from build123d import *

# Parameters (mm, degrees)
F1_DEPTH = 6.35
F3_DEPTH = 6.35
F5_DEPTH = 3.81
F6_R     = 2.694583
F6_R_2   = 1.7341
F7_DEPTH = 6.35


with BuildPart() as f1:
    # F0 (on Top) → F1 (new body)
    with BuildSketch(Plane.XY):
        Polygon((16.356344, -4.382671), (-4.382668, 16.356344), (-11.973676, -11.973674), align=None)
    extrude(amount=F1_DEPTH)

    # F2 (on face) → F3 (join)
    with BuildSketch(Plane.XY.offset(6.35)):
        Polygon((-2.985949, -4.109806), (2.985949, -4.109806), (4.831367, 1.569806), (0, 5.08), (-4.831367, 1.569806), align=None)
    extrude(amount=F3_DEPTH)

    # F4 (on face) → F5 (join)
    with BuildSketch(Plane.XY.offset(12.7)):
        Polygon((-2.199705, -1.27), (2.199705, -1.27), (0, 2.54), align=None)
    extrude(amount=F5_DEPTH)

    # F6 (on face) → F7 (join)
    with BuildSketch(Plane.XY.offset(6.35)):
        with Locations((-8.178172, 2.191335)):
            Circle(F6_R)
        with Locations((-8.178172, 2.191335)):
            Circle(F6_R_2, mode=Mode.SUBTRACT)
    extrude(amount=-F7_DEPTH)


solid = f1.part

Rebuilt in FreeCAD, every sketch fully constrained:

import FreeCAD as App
import Part
import Sketcher
from FreeCAD import Vector
Q = App.Units.Quantity

doc = App.newDocument("Part")
body = doc.addObject("PartDesign::Body", "Body")

# Sketch on XY plane
sketch1 = body.newObject("Sketcher::SketchObject", "Sketch")
sketch1.AttachmentSupport = (doc.getObject("XY_Plane"), [""])
sketch1.MapMode = "FlatFace"
sketch1.addGeometry([
    Part.LineSegment(Vector(16, -4, 0), Vector(-4, 16, 0)),
    Part.LineSegment(Vector(-4, 16, 0), Vector(-12, -12, 0)),
    Part.LineSegment(Vector(-12, -12, 0), Vector(16, -4, 0)),
], False)
sketch1.addConstraint([
    Sketcher.Constraint("Coincident", 0, 2, 1, 1),
    Sketcher.Constraint("Coincident", 1, 2, 2, 1),
    Sketcher.Constraint("Coincident", 2, 2, 0, 1),
    Sketcher.Constraint("Equal", 0, 1),
    Sketcher.Constraint("Equal", 1, 2),
    Sketcher.Constraint("Angle", 0, Q("134.999996 deg")),
    Sketcher.Constraint("DistanceY", 2, 2, -1, 1, Q("4.382671 mm")),
    Sketcher.Constraint("DistanceY", 1, 2, 0, 2, Q("28.330018 mm")),
    Sketcher.Constraint("DistanceX", 0, 2, -1, 1, Q("4.382668 mm")),
])
pad1 = body.newObject("PartDesign::Pad", "Pad")
pad1.Profile = sketch1
pad1.Length = Q("0.25 in")

# Sketch on XY plane
sketch2 = body.newObject("Sketcher::SketchObject", "Sketch001")
sketch2.AttachmentSupport = (doc.getObject("XY_Plane"), [""])
sketch2.MapMode = "FlatFace"
sketch2.AttachmentOffset = App.Placement(Vector(0, 0, 0.25 * 25.4), App.Rotation())
sketch2.addGeometry([
    Part.LineSegment(Vector(-3, -4, 0), Vector(3, -4, 0)),  # 0
    Part.LineSegment(Vector(3, -4, 0), Vector(5, 2, 0)),  # 1
    Part.LineSegment(Vector(5, 2, 0), Vector(0, 5, 0)),  # 2
    Part.LineSegment(Vector(0, 5, 0), Vector(-5, 2, 0)),  # 3
    Part.LineSegment(Vector(-5, 2, 0), Vector(-3, -4, 0)),  # 4
], False)
sketch2.addConstraint([
    Sketcher.Constraint("Coincident", 0, 2, 1, 1),
    Sketcher.Constraint("Coincident", 1, 2, 2, 1),
    Sketcher.Constraint("Coincident", 2, 2, 3, 1),
    Sketcher.Constraint("Coincident", 3, 2, 4, 1),
    Sketcher.Constraint("Coincident", 4, 2, 0, 1),
    Sketcher.Constraint("Horizontal", 0),
    Sketcher.Constraint("Symmetric", 1, 2, 3, 2, -2),
    Sketcher.Constraint("PointOnObject", 2, 2, -2),
    Sketcher.Constraint("Equal", 1, 2),
    Sketcher.Constraint("Equal", 3, 4),
    Sketcher.Constraint("Angle", 1, Q("71.999998 deg")),
    Sketcher.Constraint("Angle", 2, Q("143.999997 deg")),
    Sketcher.Constraint("DistanceY", -1, 1, 2, 2, Q("0.2 in")),
    Sketcher.Constraint("DistanceX", 0, 1, 0, 2, Q("5.971898 mm")),
])
pad2 = body.newObject("PartDesign::Pad", "Pad001")
pad2.Profile = sketch2
pad2.Length = Q("0.25 in")

# Sketch on XY plane
sketch3 = body.newObject("Sketcher::SketchObject", "Sketch002")
sketch3.AttachmentSupport = (doc.getObject("XY_Plane"), [""])
sketch3.MapMode = "FlatFace"
sketch3.AttachmentOffset = App.Placement(Vector(0, 0, 0.5 * 25.4), App.Rotation())
sketch3.addGeometry([
    Part.LineSegment(Vector(-2.2, -1.3, 0), Vector(2.2, -1.3, 0)),
    Part.LineSegment(Vector(2.2, -1.3, 0), Vector(0, 2.5, 0)),
    Part.LineSegment(Vector(0, 2.5, 0), Vector(-2.2, -1.3, 0)),
], False)
sketch3.addConstraint([
    Sketcher.Constraint("Coincident", 0, 2, 1, 1),
    Sketcher.Constraint("Coincident", 1, 2, 2, 1),
    Sketcher.Constraint("Coincident", 2, 2, 0, 1),
    Sketcher.Constraint("Horizontal", 0),
    Sketcher.Constraint("PointOnObject", 1, 2, -2),
    Sketcher.Constraint("Equal", 1, 2),
    Sketcher.Constraint("Angle", 1, Q("120.000005 deg")),
    Sketcher.Constraint("DistanceY", -1, 1, 1, 2, Q("0.1 in")),
    Sketcher.Constraint("DistanceY", 0, 2, -1, 1, Q("0.05 in")),
])
pad3 = body.newObject("PartDesign::Pad", "Pad002")
pad3.Profile = sketch3
pad3.Length = Q("0.15 in")

# Sketch on XY plane
sketch4 = body.newObject("Sketcher::SketchObject", "Sketch003")
sketch4.AttachmentSupport = (doc.getObject("XY_Plane"), [""])
sketch4.MapMode = "FlatFace"
sketch4.AttachmentOffset = App.Placement(Vector(0, 0, 0.25 * 25.4), App.Rotation())
sketch4.addGeometry([
    Part.Circle(Vector(-8.2, 2.2, 0), Vector(0, 0, 1), 2.7),
    Part.Circle(Vector(-8.2, 2.2, 0), Vector(0, 0, 1), 1.7),
], False)
sketch4.addConstraint([
    Sketcher.Constraint("Coincident", 1, 3, 0, 3),
    Sketcher.Constraint("Diameter", 1, Q("3.4682 mm")),
    Sketcher.Constraint("Diameter", 0, Q("5.389166 mm")),
    Sketcher.Constraint("DistanceX", 0, 3, -1, 1, Q("8.178172 mm")),
    Sketcher.Constraint("DistanceY", -1, 1, 0, 3, Q("2.191335 mm")),
])
pad4 = body.newObject("PartDesign::Pad", "Pad003")
pad4.Profile = sketch4
pad4.Length = Q("0.25 in")
pad4.Reversed = True

doc.recompute()
